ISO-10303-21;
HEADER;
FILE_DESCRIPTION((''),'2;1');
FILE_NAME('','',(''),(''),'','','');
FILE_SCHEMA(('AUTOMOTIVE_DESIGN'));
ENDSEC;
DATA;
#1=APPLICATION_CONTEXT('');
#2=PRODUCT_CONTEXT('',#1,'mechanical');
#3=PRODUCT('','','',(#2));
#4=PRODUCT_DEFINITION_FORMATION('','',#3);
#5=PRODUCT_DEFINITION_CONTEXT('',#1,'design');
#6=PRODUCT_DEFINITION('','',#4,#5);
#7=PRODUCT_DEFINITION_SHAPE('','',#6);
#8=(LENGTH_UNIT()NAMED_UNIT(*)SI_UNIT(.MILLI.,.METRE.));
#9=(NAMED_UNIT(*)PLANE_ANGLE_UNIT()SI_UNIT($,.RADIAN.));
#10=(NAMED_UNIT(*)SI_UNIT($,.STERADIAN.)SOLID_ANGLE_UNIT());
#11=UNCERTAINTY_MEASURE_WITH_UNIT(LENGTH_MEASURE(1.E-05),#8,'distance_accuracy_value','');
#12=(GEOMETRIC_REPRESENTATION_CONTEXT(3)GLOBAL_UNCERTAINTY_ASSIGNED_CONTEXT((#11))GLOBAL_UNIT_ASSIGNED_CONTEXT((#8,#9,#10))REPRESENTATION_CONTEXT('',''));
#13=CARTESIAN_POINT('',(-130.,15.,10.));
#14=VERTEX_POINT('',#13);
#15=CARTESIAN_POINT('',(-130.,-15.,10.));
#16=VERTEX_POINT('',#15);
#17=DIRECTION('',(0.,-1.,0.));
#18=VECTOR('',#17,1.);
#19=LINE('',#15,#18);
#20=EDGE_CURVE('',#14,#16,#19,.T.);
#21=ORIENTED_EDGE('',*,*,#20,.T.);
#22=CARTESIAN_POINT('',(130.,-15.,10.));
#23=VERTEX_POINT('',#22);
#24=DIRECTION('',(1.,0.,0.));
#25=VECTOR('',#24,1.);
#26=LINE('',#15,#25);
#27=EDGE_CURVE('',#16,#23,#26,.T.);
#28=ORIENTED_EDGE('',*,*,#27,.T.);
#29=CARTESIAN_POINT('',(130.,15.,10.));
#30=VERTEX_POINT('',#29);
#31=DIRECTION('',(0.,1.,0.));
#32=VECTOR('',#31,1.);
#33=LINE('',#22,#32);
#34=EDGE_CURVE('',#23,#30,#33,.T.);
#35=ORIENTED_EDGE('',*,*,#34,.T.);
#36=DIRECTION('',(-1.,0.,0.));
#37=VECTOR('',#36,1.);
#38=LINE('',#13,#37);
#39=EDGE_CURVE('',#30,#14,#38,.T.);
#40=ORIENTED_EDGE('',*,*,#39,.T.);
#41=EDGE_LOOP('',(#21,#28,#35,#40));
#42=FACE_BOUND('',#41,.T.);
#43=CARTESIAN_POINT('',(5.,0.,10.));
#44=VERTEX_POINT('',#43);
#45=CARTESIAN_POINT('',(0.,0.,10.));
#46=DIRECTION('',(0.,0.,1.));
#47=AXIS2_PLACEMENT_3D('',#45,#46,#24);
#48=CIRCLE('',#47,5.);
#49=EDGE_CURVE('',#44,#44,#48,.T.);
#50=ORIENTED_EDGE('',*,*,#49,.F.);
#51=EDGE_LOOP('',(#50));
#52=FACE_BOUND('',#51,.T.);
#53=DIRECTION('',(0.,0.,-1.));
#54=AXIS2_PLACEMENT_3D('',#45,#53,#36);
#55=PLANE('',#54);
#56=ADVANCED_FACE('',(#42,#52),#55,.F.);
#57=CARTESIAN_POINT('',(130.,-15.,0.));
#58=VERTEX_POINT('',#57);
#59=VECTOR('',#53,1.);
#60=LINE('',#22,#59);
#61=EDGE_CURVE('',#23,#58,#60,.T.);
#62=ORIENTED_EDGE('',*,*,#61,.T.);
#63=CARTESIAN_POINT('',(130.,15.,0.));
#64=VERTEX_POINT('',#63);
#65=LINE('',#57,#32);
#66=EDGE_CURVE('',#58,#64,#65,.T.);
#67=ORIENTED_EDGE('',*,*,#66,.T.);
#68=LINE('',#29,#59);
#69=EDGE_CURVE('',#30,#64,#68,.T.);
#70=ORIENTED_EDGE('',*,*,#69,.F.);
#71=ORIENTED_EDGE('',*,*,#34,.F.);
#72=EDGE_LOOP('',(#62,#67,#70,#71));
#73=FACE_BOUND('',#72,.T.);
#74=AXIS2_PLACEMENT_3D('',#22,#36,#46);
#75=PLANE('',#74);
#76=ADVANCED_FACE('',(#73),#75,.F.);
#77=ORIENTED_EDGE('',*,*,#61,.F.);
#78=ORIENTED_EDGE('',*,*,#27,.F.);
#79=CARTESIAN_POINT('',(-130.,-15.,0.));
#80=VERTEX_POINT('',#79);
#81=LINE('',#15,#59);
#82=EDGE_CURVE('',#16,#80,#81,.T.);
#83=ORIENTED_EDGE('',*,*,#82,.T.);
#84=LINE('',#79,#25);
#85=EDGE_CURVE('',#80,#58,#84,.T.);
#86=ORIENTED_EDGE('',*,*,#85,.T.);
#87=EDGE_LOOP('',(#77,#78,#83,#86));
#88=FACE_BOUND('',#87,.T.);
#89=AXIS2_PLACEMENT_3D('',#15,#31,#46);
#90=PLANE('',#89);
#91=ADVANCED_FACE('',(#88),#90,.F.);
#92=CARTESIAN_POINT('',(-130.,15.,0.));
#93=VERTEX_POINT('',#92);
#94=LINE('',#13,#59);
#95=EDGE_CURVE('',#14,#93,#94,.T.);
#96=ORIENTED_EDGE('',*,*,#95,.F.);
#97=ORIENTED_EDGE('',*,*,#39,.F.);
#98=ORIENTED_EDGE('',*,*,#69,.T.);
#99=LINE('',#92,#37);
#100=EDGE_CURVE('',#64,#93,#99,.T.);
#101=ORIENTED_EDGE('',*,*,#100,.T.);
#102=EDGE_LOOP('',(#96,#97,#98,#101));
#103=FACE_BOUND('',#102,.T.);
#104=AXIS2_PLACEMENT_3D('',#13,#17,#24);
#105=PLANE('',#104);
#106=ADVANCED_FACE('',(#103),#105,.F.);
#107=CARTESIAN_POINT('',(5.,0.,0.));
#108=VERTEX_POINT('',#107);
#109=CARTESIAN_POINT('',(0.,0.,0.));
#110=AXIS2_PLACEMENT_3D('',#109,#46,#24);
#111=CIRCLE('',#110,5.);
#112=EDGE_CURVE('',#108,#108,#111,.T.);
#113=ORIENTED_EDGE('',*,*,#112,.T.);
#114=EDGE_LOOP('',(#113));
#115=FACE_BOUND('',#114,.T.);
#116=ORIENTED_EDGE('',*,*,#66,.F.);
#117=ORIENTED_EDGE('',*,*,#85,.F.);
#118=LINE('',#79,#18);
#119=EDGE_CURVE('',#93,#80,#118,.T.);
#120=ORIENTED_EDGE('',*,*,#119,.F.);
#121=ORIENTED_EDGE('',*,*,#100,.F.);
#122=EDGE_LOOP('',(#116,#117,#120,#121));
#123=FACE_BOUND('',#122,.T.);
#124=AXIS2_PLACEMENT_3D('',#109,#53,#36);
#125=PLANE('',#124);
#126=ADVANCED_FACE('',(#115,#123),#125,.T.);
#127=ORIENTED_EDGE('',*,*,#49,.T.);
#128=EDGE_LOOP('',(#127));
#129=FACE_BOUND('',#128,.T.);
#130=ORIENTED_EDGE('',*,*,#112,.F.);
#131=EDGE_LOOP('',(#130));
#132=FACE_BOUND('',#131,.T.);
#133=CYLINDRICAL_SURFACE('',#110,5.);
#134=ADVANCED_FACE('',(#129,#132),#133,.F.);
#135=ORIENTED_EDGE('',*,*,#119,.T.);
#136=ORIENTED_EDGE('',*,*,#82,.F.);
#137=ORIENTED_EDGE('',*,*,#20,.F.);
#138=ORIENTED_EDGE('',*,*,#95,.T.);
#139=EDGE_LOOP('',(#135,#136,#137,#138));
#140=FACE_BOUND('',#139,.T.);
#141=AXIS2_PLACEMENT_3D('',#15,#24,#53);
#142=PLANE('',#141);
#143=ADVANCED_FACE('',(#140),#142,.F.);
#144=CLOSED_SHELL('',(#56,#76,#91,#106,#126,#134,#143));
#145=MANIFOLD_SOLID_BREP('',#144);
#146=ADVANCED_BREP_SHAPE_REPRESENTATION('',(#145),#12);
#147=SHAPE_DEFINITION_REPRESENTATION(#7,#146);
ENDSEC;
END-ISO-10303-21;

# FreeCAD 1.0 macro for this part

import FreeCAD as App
import Part
import Sketcher

doc = App.newDocument("Part")
body = doc.addObject("PartDesign::Body", "Body")

# Sketch on XY plane
sketch1 = body.newObject("Sketcher::SketchObject", "Sketch")
sketch1.AttachmentSupport = (doc.getObject("XY_Plane"), [""])
sketch1.MapMode = "FlatFace"
sketch1.addGeometry([
    Part.LineSegment(App.Vector(-130, 15, 0), App.Vector(-130, -15, 0)),
    Part.LineSegment(App.Vector(-130, -15, 0), App.Vector(130, -15, 0)),
    Part.LineSegment(App.Vector(130, -15, 0), App.Vector(130, 15, 0)),
    Part.LineSegment(App.Vector(130, 15, 0), App.Vector(-130, 15, 0)),
], False)
sketch1.addConstraint([
    Sketcher.Constraint("Coincident", 0, 2, 1, 1),
    Sketcher.Constraint("Coincident", 1, 2, 2, 1),
    Sketcher.Constraint("Coincident", 2, 2, 3, 1),
    Sketcher.Constraint("Coincident", 3, 2, 0, 1),
    Sketcher.Constraint("Vertical", 0),
    Sketcher.Constraint("Horizontal", 1),
    Sketcher.Constraint("Vertical", 2),
    Sketcher.Constraint("Horizontal", 3),
    Sketcher.Constraint("Symmetric", 0, 2, 2, 2, -1, 1),
    Sketcher.Constraint("DistanceX", 1, 1, 1, 2, 260.0),
    Sketcher.Constraint("DistanceY", 0, 2, 0, 1, 30.0),
])
pad1 = body.newObject("PartDesign::Pad", "Pad")
pad1.Profile = sketch1
pad1.Length = 10

# Sketch on XY plane
sketch2 = body.newObject("Sketcher::SketchObject", "Sketch001")
sketch2.AttachmentSupport = (doc.getObject("XY_Plane"), [""])
sketch2.MapMode = "FlatFace"
sketch2.AttachmentOffset = App.Placement(App.Vector(0, 0, 10), App.Rotation())
sketch2.addGeometry(Part.Circle(App.Vector(0, 0, 0), App.Vector(0, 0, 1), 5), False)
sketch2.addConstraint([
    Sketcher.Constraint("Coincident", 0, 3, -1, 1),
    Sketcher.Constraint("Diameter", 0, 10.0),
])
pocket1 = body.newObject("PartDesign::Pocket", "Pocket")
pocket1.Profile = sketch2
pocket1.Length = 10

doc.recompute()
